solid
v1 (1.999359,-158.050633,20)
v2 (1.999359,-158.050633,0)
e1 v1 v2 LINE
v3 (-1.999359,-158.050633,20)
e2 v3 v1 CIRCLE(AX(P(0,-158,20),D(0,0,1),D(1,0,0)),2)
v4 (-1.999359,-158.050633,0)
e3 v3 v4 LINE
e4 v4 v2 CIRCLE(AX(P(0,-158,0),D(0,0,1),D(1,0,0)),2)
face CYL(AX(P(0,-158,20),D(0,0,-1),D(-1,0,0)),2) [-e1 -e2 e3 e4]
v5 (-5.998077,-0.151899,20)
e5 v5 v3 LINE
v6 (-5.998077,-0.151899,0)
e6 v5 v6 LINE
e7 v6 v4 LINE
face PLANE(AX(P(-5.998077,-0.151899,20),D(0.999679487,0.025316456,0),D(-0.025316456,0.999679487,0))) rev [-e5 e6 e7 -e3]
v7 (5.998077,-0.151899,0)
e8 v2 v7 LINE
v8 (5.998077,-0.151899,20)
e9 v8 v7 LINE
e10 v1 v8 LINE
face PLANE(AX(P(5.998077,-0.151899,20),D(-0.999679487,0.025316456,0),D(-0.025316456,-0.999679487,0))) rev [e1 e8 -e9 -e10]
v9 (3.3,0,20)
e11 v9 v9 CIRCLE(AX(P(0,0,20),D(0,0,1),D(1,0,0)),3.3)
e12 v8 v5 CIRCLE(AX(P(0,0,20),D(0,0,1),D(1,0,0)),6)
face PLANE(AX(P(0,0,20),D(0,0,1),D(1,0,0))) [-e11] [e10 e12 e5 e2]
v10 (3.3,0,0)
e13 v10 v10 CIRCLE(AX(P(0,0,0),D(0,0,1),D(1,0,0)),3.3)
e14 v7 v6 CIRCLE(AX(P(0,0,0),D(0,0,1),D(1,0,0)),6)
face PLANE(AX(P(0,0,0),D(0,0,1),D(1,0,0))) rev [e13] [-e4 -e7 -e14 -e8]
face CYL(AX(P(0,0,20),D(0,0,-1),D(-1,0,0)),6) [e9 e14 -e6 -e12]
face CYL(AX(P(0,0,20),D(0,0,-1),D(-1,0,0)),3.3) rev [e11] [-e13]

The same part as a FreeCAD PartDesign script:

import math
import FreeCAD as App
import Part
import Sketcher
from FreeCAD import Vector
Q = App.Units.Quantity

doc = App.newDocument("Part")
body = doc.addObject("PartDesign::Body", "Body")

# Sketch on XY plane
sketch1 = doc.addObject("Sketcher::SketchObject", "Sketch")
body.addObject(sketch1)
sketch1.AttachmentSupport = (doc.XY_Plane, [""])
sketch1.MapMode = "FlatFace"
sketch1.addGeometry([
    Part.LineSegment(Vector(-6, -0.2, 0), Vector(-2, -158.1, 0)),  # 0
    Part.ArcOfCircle(Part.Circle(Vector(0, -158, 0), Vector(0, 0, 1), 2), math.radians(-179), math.radians(-1)),  # 1
    Part.LineSegment(Vector(2, -158.1, 0), Vector(6, -0.2, 0)),  # 2
    Part.ArcOfCircle(Part.Circle(Vector(0, 0, 0), Vector(0, 0, 1), 6), math.radians(-1), math.radians(181)),  # 3
    Part.Circle(Vector(0, 0, 0), Vector(0, 0, 1), 3.3),  # 4
], False)
sketch1.addConstraint([
    Sketcher.Constraint("Tangent", 0, 2, 1, 1),
    Sketcher.Constraint("Tangent", 1, 2, 2, 1),
    Sketcher.Constraint("Tangent", 2, 2, 3, 1),
    Sketcher.Constraint("Tangent", 3, 2, 0, 1),
    Sketcher.Constraint("Coincident", 3, 3, -1, 1),
    Sketcher.Constraint("Coincident", 4, 3, -1, 1),
    Sketcher.Constraint("PointOnObject", 1, 3, -2),
    Sketcher.Constraint("Radius", 1, Q("2 mm")),
    Sketcher.Constraint("Radius", 3, Q("6 mm")),
    Sketcher.Constraint("Diameter", 4, Q("6.6 mm")),
    Sketcher.Constraint("DistanceY", 1, 3, -1, 1, Q("158 mm")),
])
pad1 = doc.addObject("PartDesign::Pad", "Pad")
body.addObject(pad1)
pad1.Profile = sketch1
pad1.Length = 20

doc.recompute()
